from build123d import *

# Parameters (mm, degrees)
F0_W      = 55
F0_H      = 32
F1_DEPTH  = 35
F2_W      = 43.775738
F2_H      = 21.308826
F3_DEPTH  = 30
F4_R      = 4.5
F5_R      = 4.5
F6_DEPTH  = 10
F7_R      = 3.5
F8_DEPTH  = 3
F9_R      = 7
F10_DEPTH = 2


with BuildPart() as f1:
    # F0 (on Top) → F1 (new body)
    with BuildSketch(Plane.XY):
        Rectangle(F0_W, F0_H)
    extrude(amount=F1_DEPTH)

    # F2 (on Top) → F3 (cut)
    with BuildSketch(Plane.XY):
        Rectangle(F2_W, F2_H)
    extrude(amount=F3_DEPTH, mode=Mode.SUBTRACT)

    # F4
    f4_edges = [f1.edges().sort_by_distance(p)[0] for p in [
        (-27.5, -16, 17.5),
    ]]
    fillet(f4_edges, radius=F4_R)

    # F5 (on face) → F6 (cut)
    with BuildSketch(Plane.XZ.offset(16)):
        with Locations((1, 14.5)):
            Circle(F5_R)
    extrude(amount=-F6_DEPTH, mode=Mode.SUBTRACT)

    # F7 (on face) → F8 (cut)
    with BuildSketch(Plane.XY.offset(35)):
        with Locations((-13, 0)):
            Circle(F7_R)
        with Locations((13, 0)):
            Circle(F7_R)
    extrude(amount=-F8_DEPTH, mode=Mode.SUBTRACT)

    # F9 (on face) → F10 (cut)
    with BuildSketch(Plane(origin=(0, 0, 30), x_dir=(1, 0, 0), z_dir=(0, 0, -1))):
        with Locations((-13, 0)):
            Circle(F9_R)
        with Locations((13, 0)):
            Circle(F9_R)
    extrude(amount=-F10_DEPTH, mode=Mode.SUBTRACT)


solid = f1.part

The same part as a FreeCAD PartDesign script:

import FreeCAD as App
import Part
import Sketcher
from FreeCAD import Vector


def edges_at(feature, points):
    """Names of the edges that pass closest to the given points."""
    edges = feature.Shape.Edges
    near = lambda p: min(range(len(edges)), key=lambda i: edges[i].distToShape(Part.Vertex(*p))[0])
    return sorted({f"Edge{near(p) + 1}" for p in points})

doc = App.newDocument("Part")
params = doc.addObject("Spreadsheet::Sheet", "Params")
for row, (alias, value) in enumerate([
    ("sketch1_width", "55 mm"),
    ("sketch1_height", "32 mm"),
    ("pad1_length", "35 mm"),
    ("pocket1_length", "30 mm"),
    ("fillet_radius", "4.5 mm"),
    ("sketch3_diameter", "9 mm"),
    ("pocket2_length", "10 mm"),
    ("sketch4_diameter", "7 mm"),
    ("pocket3_length", "3 mm"),
    ("sketch5_diameter", "14 mm"),
    ("pocket4_length", "2 mm"),
], start=1):
    params.set(f"A{row}", alias)
    params.set(f"B{row}", "=" + value)
    params.setAlias(f"B{row}", alias)

body = doc.addObject("PartDesign::Body", "Body")

# Sketch on XY plane
sketch1 = body.newObject("Sketcher::SketchObject", "Sketch")
sketch1.AttachmentSupport = (doc.getObject("XY_Plane"), [""])
sketch1.MapMode = "FlatFace"
sketch1.addGeometry([
    Part.LineSegment(Vector(-27.5, 16, 0), Vector(-27.5, -16, 0)),
    Part.LineSegment(Vector(-27.5, -16, 0), Vector(27.5, -16, 0)),
    Part.LineSegment(Vector(27.5, -16, 0), Vector(27.5, 16, 0)),
    Part.LineSegment(Vector(27.5, 16, 0), Vector(-27.5, 16, 0)),
], False)
sketch1.addConstraint([
    Sketcher.Constraint("Coincident", 0, 2, 1, 1),
    Sketcher.Constraint("Coincident", 1, 2, 2, 1),
    Sketcher.Constraint("Coincident", 2, 2, 3, 1),
    Sketcher.Constraint("Coincident", 3, 2, 0, 1),
    Sketcher.Constraint("Vertical", 0),
    Sketcher.Constraint("Horizontal", 1),
    Sketcher.Constraint("Vertical", 2),
    Sketcher.Constraint("Horizontal", 3),
    Sketcher.Constraint("Symmetric", 0, 2, 2, 2, -1, 1),
    Sketcher.Constraint("DistanceX", 1, 1, 1, 2, 55.0),
    Sketcher.Constraint("DistanceY", 0, 2, 0, 1, 32.0),
])
sketch1.setExpression("Constraints[9]", "Params.sketch1_width")
sketch1.setExpression("Constraints[10]", "Params.sketch1_height")
pad1 = body.newObject("PartDesign::Pad", "Pad")
pad1.Profile = sketch1
pad1.setExpression("Length", "Params.pad1_length")

# Sketch on XY plane
sketch2 = body.newObject("Sketcher::SketchObject", "Sketch001")
sketch2.AttachmentSupport = (doc.getObject("XY_Plane"), [""])
sketch2.MapMode = "FlatFace"
sketch2.addGeometry([
    Part.LineSegment(Vector(-21.887869, 10.654413, 0), Vector(-21.887869, -10.654413, 0)),
    Part.LineSegment(Vector(-21.887869, -10.654413, 0), Vector(21.887869, -10.654413, 0)),
    Part.LineSegment(Vector(21.887869, -10.654413, 0), Vector(21.887869, 10.654413, 0)),
    Part.LineSegment(Vector(21.887869, 10.654413, 0), Vector(-21.887869, 10.654413, 0)),
], False)
sketch2.addConstraint([
    Sketcher.Constraint("Coincident", 0, 2, 1, 1),
    Sketcher.Constraint("Coincident", 1, 2, 2, 1),
    Sketcher.Constraint("Coincident", 2, 2, 3, 1),
    Sketcher.Constraint("Coincident", 3, 2, 0, 1),
    Sketcher.Constraint("Vertical", 0),
    Sketcher.Constraint("Horizontal", 1),
    Sketcher.Constraint("Vertical", 2),
    Sketcher.Constraint("Horizontal", 3),
    Sketcher.Constraint("Symmetric", 0, 2, 2, 2, -1, 1),
    Sketcher.Constraint("DistanceX", 1, 1, 1, 2, 43.775738),
    Sketcher.Constraint("DistanceY", 0, 2, 0, 1, 21.308826),
])
pocket1 = body.newObject("PartDesign::Pocket", "Pocket")
pocket1.Profile = sketch2
pocket1.setExpression("Length", "Params.pocket1_length")
pocket1.Reversed = True
doc.recompute()

fillet = body.newObject("PartDesign::Fillet", "Fillet")
fillet.Base = (pocket1, edges_at(pocket1, [(-27.5, -16, 17.5)]))
fillet.setExpression("Radius", "Params.fillet_radius")

# Sketch on XZ plane
sketch3 = body.newObject("Sketcher::SketchObject", "Sketch002")
sketch3.AttachmentSupport = (doc.getObject("XZ_Plane"), [""])
sketch3.MapMode = "FlatFace"
sketch3.AttachmentOffset = App.Placement(Vector(0, 0, 16), App.Rotation())
sketch3.addGeometry(Part.Circle(Vector(1, 14.5, 0), Vector(0, 0, 1), 4.5), False)
sketch3.addConstraint([
    Sketcher.Constraint("Diameter", 0, 9.0),
    Sketcher.Constraint("DistanceX", -1, 1, 0, 3, 1.0),
    Sketcher.Constraint("DistanceY", -1, 1, 0, 3, 14.5),
])
sketch3.setExpression("Constraints[0]", "Params.sketch3_diameter")
pocket2 = body.newObject("PartDesign::Pocket", "Pocket001")
pocket2.Profile = sketch3
pocket2.setExpression("Length", "Params.pocket2_length")

# Sketch on XY plane
sketch4 = body.newObject("Sketcher::SketchObject", "Sketch003")
sketch4.AttachmentSupport = (doc.getObject("XY_Plane"), [""])
sketch4.MapMode = "FlatFace"
sketch4.AttachmentOffset = App.Placement(Vector(0, 0, 35), App.Rotation())
sketch4.addGeometry([
    Part.Circle(Vector(-13, 0, 0), Vector(0, 0, 1), 3.5),
    Part.Circle(Vector(13, 0, 0), Vector(0, 0, 1), 3.5),
], False)
sketch4.addConstraint([
    Sketcher.Constraint("Equal", 0, 1),
    Sketcher.Constraint("Symmetric", 0, 3, 1, 3, -1, 1),
    Sketcher.Constraint("PointOnObject", 0, 3, -1),
    Sketcher.Constraint("Diameter", 0, 7.0),
    Sketcher.Constraint("DistanceX", 0, 3, -1, 1, 13.0),
])
sketch4.setExpression("Constraints[3]", "Params.sketch4_diameter")
pocket3 = body.newObject("PartDesign::Pocket", "Pocket002")
pocket3.Profile = sketch4
pocket3.setExpression("Length", "Params.pocket3_length")

# Sketch on XY plane
sketch5 = body.newObject("Sketcher::SketchObject", "Sketch004")
sketch5.AttachmentSupport = (doc.getObject("XY_Plane"), [""])
sketch5.MapMode = "FlatFace"
sketch5.AttachmentOffset = App.Placement(Vector(0, 0, 30), App.Rotation())
sketch5.addGeometry([
    Part.Circle(Vector(-13, 0, 0), Vector(0, 0, 1), 7),
    Part.Circle(Vector(13, 0, 0), Vector(0, 0, 1), 7),
], False)
sketch5.addConstraint([
    Sketcher.Constraint("Equal", 0, 1),
    Sketcher.Constraint("Symmetric", 0, 3, 1, 3, -1, 1),
    Sketcher.Constraint("PointOnObject", 0, 3, -1),
    Sketcher.Constraint("Diameter", 0, 14.0),
    Sketcher.Constraint("DistanceX", 0, 3, -1, 1, 13.0),
])
sketch5.setExpression("Constraints[3]", "Params.sketch5_diameter")
pocket4 = body.newObject("PartDesign::Pocket", "Pocket003")
pocket4.Profile = sketch5
pocket4.setExpression("Length", "Params.pocket4_length")
pocket4.Reversed = True

doc.recompute()
